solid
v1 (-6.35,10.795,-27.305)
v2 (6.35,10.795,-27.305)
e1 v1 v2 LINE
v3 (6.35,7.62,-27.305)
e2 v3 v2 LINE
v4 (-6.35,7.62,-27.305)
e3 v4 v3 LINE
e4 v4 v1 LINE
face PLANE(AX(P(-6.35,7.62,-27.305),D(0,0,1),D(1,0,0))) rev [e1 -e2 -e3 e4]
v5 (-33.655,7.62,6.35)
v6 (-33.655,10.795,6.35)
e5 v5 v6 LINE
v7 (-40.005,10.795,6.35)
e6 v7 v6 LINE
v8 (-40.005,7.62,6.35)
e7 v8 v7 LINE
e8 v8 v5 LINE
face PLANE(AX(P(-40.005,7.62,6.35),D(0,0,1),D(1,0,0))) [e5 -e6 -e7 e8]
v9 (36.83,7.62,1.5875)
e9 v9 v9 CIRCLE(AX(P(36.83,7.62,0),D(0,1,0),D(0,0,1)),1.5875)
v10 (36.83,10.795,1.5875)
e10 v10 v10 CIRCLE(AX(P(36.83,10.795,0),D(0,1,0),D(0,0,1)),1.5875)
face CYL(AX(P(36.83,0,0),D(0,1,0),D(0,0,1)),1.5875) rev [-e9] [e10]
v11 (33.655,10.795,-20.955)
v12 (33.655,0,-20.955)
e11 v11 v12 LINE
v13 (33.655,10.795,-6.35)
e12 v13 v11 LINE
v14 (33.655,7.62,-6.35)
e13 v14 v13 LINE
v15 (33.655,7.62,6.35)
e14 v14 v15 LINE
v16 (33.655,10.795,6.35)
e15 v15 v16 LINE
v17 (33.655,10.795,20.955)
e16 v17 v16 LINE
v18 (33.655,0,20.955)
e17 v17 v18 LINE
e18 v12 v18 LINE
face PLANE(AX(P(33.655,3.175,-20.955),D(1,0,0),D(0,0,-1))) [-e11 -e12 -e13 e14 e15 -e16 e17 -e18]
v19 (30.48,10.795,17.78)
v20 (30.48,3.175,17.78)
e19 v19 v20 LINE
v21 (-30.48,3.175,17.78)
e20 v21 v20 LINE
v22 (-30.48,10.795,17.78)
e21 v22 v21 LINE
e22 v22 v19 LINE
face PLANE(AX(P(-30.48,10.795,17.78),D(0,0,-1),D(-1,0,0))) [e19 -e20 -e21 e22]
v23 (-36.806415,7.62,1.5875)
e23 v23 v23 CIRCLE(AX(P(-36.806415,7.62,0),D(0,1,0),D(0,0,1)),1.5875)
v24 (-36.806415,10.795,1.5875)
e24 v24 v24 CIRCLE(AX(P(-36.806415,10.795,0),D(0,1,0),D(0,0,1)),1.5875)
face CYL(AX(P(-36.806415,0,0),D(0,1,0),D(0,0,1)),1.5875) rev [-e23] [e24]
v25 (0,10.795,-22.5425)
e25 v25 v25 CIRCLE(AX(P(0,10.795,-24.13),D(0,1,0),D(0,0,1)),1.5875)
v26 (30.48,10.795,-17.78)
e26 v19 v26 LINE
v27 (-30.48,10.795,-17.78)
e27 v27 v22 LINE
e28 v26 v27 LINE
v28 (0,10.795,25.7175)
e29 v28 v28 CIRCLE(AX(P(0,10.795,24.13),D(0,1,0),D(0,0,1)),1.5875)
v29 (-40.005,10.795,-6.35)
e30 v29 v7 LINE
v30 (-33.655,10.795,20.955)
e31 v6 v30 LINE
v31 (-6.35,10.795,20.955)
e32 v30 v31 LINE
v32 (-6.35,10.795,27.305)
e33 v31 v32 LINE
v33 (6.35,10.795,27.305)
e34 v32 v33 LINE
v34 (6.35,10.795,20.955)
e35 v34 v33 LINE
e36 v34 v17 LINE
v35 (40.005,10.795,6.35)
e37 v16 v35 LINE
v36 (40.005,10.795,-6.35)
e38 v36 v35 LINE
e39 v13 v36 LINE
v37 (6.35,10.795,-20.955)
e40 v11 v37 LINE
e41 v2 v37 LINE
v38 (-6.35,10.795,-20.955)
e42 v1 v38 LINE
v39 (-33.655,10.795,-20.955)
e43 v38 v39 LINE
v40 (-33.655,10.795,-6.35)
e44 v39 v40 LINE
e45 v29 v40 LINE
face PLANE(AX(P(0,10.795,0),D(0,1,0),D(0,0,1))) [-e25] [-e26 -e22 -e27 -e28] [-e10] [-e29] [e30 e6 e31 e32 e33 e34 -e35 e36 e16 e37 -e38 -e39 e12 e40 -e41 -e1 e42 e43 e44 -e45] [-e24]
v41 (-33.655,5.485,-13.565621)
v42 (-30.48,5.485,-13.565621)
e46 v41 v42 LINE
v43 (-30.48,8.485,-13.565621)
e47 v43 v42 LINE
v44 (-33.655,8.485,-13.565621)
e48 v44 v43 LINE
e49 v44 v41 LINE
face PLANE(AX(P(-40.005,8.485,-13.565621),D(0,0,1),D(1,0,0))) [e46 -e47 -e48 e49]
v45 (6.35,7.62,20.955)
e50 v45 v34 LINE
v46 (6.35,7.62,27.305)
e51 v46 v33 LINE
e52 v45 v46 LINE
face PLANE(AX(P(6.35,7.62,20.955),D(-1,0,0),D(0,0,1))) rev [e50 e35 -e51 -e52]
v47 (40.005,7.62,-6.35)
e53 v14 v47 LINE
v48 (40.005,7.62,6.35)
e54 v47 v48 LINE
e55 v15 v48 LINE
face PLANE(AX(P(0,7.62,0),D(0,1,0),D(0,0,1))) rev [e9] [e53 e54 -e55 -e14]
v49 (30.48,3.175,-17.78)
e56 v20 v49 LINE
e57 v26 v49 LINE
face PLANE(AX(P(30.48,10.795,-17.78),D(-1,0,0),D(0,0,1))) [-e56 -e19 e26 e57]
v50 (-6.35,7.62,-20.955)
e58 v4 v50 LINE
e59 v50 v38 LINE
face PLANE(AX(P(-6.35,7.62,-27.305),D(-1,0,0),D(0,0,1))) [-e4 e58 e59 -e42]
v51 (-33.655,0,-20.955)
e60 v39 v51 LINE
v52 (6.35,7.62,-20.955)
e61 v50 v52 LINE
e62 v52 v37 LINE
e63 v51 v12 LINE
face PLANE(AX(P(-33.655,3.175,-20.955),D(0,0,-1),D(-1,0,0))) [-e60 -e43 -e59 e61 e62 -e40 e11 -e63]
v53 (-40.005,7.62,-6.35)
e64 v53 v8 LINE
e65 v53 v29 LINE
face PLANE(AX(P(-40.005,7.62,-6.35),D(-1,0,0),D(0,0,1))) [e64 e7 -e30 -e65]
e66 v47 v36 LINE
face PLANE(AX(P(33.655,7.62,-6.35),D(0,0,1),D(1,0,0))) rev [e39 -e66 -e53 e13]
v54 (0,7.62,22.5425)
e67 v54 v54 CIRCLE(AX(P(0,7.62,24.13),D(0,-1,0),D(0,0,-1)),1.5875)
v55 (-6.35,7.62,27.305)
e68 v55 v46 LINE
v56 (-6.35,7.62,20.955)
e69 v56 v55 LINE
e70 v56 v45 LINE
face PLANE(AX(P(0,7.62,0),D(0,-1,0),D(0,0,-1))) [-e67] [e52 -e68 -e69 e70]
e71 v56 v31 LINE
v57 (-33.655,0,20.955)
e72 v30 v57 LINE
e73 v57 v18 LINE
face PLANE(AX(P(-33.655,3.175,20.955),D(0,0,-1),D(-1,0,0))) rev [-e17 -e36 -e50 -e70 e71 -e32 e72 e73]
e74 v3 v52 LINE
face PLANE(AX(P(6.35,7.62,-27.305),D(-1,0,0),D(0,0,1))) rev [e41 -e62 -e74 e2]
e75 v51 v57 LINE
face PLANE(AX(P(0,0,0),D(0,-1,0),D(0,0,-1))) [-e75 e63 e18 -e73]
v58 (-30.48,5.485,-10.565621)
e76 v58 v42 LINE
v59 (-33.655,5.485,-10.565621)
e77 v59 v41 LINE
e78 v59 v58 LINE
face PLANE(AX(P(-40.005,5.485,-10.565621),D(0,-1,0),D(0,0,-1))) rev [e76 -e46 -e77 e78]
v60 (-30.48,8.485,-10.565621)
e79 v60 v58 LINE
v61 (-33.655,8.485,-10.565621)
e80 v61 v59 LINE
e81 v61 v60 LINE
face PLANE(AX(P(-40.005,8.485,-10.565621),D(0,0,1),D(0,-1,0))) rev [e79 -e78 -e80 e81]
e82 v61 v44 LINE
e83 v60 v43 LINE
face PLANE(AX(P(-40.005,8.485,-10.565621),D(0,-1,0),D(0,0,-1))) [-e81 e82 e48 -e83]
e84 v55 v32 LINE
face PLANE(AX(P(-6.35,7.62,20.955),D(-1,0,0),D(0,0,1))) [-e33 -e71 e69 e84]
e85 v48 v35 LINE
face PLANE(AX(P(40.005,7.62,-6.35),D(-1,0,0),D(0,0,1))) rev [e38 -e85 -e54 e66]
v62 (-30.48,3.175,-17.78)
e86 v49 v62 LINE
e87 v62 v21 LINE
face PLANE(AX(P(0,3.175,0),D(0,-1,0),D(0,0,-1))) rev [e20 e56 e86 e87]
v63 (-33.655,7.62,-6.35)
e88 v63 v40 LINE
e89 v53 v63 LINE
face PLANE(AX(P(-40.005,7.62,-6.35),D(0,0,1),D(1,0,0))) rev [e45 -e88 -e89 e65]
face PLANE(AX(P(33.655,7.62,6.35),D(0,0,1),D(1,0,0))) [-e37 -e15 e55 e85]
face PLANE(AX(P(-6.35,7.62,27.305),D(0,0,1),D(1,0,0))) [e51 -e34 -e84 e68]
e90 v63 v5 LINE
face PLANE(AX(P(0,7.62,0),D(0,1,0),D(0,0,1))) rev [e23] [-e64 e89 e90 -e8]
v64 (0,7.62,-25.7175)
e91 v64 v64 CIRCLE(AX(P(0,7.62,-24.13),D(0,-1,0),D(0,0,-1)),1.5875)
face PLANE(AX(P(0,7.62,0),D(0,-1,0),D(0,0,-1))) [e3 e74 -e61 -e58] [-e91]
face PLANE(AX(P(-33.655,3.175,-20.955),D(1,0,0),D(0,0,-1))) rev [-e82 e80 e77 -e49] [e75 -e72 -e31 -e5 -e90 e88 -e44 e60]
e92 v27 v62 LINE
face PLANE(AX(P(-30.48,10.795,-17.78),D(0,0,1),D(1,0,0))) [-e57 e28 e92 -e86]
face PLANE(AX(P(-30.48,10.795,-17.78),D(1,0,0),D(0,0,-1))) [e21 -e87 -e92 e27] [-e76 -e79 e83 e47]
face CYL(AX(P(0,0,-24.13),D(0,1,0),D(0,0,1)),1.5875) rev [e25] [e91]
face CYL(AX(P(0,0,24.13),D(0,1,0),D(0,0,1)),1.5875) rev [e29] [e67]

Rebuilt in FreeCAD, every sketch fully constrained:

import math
import FreeCAD as App
import Part
import Sketcher
Q = App.Units.Quantity

doc = App.newDocument("Part")
body = doc.addObject("PartDesign::Body", "Body")

sketch1 = body.newObject("Sketcher::SketchObject", "Sketch")
sketch1.AttachmentSupport = (doc.getObject("XZ_Plane"), [""])
sketch1.MapMode = "FlatFace"
sketch1.addGeometry(Part.LineSegment(App.Vector(-34, -21, 0), App.Vector(-34, 21, 0)), False)
sketch1.addGeometry(Part.LineSegment(App.Vector(-34, 21, 0), App.Vector(34, 21, 0)), False)
sketch1.addGeometry(Part.LineSegment(App.Vector(34, 21, 0), App.Vector(34, -21, 0)), False)
sketch1.addGeometry(Part.LineSegment(App.Vector(34, -21, 0), App.Vector(-34, -21, 0)), False)
sketch1.addConstraint(Sketcher.Constraint("Coincident", 0, 2, 1, 1))
sketch1.addConstraint(Sketcher.Constraint("Coincident", 1, 2, 2, 1))
sketch1.addConstraint(Sketcher.Constraint("Coincident", 2, 2, 3, 1))
sketch1.addConstraint(Sketcher.Constraint("Coincident", 3, 2, 0, 1))
sketch1.addConstraint(Sketcher.Constraint("Vertical", 0))
sketch1.addConstraint(Sketcher.Constraint("Horizontal", 1))
sketch1.addConstraint(Sketcher.Constraint("Vertical", 2))
sketch1.addConstraint(Sketcher.Constraint("Horizontal", 3))
sketch1.addConstraint(Sketcher.Constraint("Symmetric", 0, 2, 2, 2, -1, 1))
sketch1.addConstraint(Sketcher.Constraint("DistanceX", 1, 1, 1, 2, Q("2.65 in")))
sketch1.addConstraint(Sketcher.Constraint("DistanceY", 0, 1, 0, 2, Q("1.65 in")))
pad1 = body.newObject("PartDesign::Pad", "Pad")
pad1.Profile = sketch1
pad1.Length = Q("0.125 in")
pad1.Reversed = True

sketch2 = body.newObject("Sketcher::SketchObject", "Sketch001")
sketch2.AttachmentSupport = (doc.getObject("XZ_Plane"), [""])
sketch2.MapMode = "FlatFace"
sketch2.AttachmentOffset = App.Placement(App.Vector(0, 0, -0.125 * 25.4), App.Rotation())
sketch2.addGeometry(Part.LineSegment(App.Vector(-34, -21, 0), App.Vector(-34, 21, 0)), False)
sketch2.addGeometry(Part.LineSegment(App.Vector(-34, 21, 0), App.Vector(34, 21, 0)), False)
sketch2.addGeometry(Part.LineSegment(App.Vector(34, 21, 0), App.Vector(34, -21, 0)), False)
sketch2.addGeometry(Part.LineSegment(App.Vector(34, -21, 0), App.Vector(-34, -21, 0)), False)
sketch2.addGeometry(Part.LineSegment(App.Vector(30, 18, 0), App.Vector(-30, 18, 0)), False)
sketch2.addGeometry(Part.LineSegment(App.Vector(-30, 18, 0), App.Vector(-30, -18, 0)), False)
sketch2.addGeometry(Part.LineSegment(App.Vector(-30, -18, 0), App.Vector(30, -18, 0)), False)
sketch2.addGeometry(Part.LineSegment(App.Vector(30, -18, 0), App.Vector(30, 18, 0)), False)
sketch2.addConstraint(Sketcher.Constraint("Coincident", 0, 2, 1, 1))
sketch2.addConstraint(Sketcher.Constraint("Coincident", 1, 2, 2, 1))
sketch2.addConstraint(Sketcher.Constraint("Coincident", 2, 2, 3, 1))
sketch2.addConstraint(Sketcher.Constraint("Coincident", 3, 2, 0, 1))
sketch2.addConstraint(Sketcher.Constraint("Coincident", 4, 2, 5, 1))
sketch2.addConstraint(Sketcher.Constraint("Coincident", 5, 2, 6, 1))
sketch2.addConstraint(Sketcher.Constraint("Coincident", 6, 2, 7, 1))
sketch2.addConstraint(Sketcher.Constraint("Coincident", 7, 2, 4, 1))
sketch2.addConstraint(Sketcher.Constraint("Vertical", 0))
sketch2.addConstraint(Sketcher.Constraint("Horizontal", 1))
sketch2.addConstraint(Sketcher.Constraint("Vertical", 2))
sketch2.addConstraint(Sketcher.Constraint("Horizontal", 3))
sketch2.addConstraint(Sketcher.Constraint("Horizontal", 4))
sketch2.addConstraint(Sketcher.Constraint("Vertical", 5))
sketch2.addConstraint(Sketcher.Constraint("Horizontal", 6))
sketch2.addConstraint(Sketcher.Constraint("Vertical", 7))
sketch2.addConstraint(Sketcher.Constraint("Symmetric", 0, 2, 2, 2, -1, 1))
sketch2.addConstraint(Sketcher.Constraint("Symmetric", 4, 2, 6, 2, -1, 1))
sketch2.addConstraint(Sketcher.Constraint("DistanceX", 4, 2, 4, 1, Q("2.4 in")))
sketch2.addConstraint(Sketcher.Constraint("DistanceY", 5, 2, 5, 1, Q("1.4 in")))
sketch2.addConstraint(Sketcher.Constraint("DistanceX", 1, 1, 1, 2, Q("2.65 in")))
sketch2.addConstraint(Sketcher.Constraint("DistanceY", 0, 1, 0, 2, Q("1.65 in")))
pad2 = body.newObject("PartDesign::Pad", "Pad001")
pad2.Profile = sketch2
pad2.Length = Q("0.3 in")
pad2.Reversed = True

sketch3 = body.newObject("Sketcher::SketchObject", "Sketch002")
sketch3.AttachmentSupport = (doc.getObject("XZ_Plane"), [""])
sketch3.MapMode = "FlatFace"
sketch3.AttachmentOffset = App.Placement(App.Vector(0, 0, -0.425 * 25.4), App.Rotation())
sketch3.addGeometry(Part.LineSegment(App.Vector(-6, 21, 0), App.Vector(-6, 27, 0)), False)
sketch3.addGeometry(Part.LineSegment(App.Vector(-6, 27, 0), App.Vector(6, 27, 0)), False)
sketch3.addGeometry(Part.LineSegment(App.Vector(6, 27, 0), App.Vector(6, 21, 0)), False)
sketch3.addGeometry(Part.LineSegment(App.Vector(6, 21, 0), App.Vector(-6, 21, 0)), False)
sketch3.addGeometry(Part.LineSegment(App.Vector(-6, -27, 0), App.Vector(-6, -21, 0)), False)
sketch3.addGeometry(Part.LineSegment(App.Vector(-6, -21, 0), App.Vector(6, -21, 0)), False)
sketch3.addGeometry(Part.LineSegment(App.Vector(6, -21, 0), App.Vector(6, -27, 0)), False)
sketch3.addGeometry(Part.LineSegment(App.Vector(6, -27, 0), App.Vector(-6, -27, 0)), False)
sketch3.addGeometry(Part.LineSegment(App.Vector(34, -6, 0), App.Vector(34, 6, 0)), False)
sketch3.addGeometry(Part.LineSegment(App.Vector(34, 6, 0), App.Vector(40, 6, 0)), False)
sketch3.addGeometry(Part.LineSegment(App.Vector(40, 6, 0), App.Vector(40, -6, 0)), False)
sketch3.addGeometry(Part.LineSegment(App.Vector(40, -6, 0), App.Vector(34, -6, 0)), False)
sketch3.addGeometry(Part.LineSegment(App.Vector(-40, -6, 0), App.Vector(-40, 6, 0)), False)
sketch3.addGeometry(Part.LineSegment(App.Vector(-40, 6, 0), App.Vector(-34, 6, 0)), False)
sketch3.addGeometry(Part.LineSegment(App.Vector(-34, 6, 0), App.Vector(-34, -6, 0)), False)
sketch3.addGeometry(Part.LineSegment(App.Vector(-34, -6, 0), App.Vector(-40, -6, 0)), False)
sketch3.addConstraint(Sketcher.Constraint("Coincident", 0, 2, 1, 1))
sketch3.addConstraint(Sketcher.Constraint("Coincident", 1, 2, 2, 1))
sketch3.addConstraint(Sketcher.Constraint("Coincident", 2, 2, 3, 1))
sketch3.addConstraint(Sketcher.Constraint("Coincident", 3, 2, 0, 1))
sketch3.addConstraint(Sketcher.Constraint("Coincident", 4, 2, 5, 1))
sketch3.addConstraint(Sketcher.Constraint("Coincident", 5, 2, 6, 1))
sketch3.addConstraint(Sketcher.Constraint("Coincident", 6, 2, 7, 1))
sketch3.addConstraint(Sketcher.Constraint("Coincident", 7, 2, 4, 1))
sketch3.addConstraint(Sketcher.Constraint("Coincident", 8, 2, 9, 1))
sketch3.addConstraint(Sketcher.Constraint("Coincident", 9, 2, 10, 1))
sketch3.addConstraint(Sketcher.Constraint("Coincident", 10, 2, 11, 1))
sketch3.addConstraint(Sketcher.Constraint("Coincident", 11, 2, 8, 1))
sketch3.addConstraint(Sketcher.Constraint("Coincident", 12, 2, 13, 1))
sketch3.addConstraint(Sketcher.Constraint("Coincident", 13, 2, 14, 1))
sketch3.addConstraint(Sketcher.Constraint("Coincident", 14, 2, 15, 1))
sketch3.addConstraint(Sketcher.Constraint("Coincident", 15, 2, 12, 1))
sketch3.addConstraint(Sketcher.Constraint("Vertical", 0))
sketch3.addConstraint(Sketcher.Constraint("Horizontal", 1))
sketch3.addConstraint(Sketcher.Constraint("Vertical", 2))
sketch3.addConstraint(Sketcher.Constraint("Horizontal", 3))
sketch3.addConstraint(Sketcher.Constraint("Vertical", 4))
sketch3.addConstraint(Sketcher.Constraint("Horizontal", 5))
sketch3.addConstraint(Sketcher.Constraint("Vertical", 6))
sketch3.addConstraint(Sketcher.Constraint("Horizontal", 7))
sketch3.addConstraint(Sketcher.Constraint("Vertical", 8))
sketch3.addConstraint(Sketcher.Constraint("Horizontal", 9))
sketch3.addConstraint(Sketcher.Constraint("Vertical", 10))
sketch3.addConstraint(Sketcher.Constraint("Horizontal", 11))
sketch3.addConstraint(Sketcher.Constraint("Vertical", 12))
sketch3.addConstraint(Sketcher.Constraint("Horizontal", 13))
sketch3.addConstraint(Sketcher.Constraint("Vertical", 14))
sketch3.addConstraint(Sketcher.Constraint("Horizontal", 15))
sketch3.addConstraint(Sketcher.Constraint("Symmetric", 2, 2, 4, 2, -1, 1))
sketch3.addConstraint(Sketcher.Constraint("Symmetric", 0, 2, 6, 2, -1, 1))
sketch3.addConstraint(Sketcher.Constraint("Symmetric", 10, 2, 12, 2, -1, 1))
sketch3.addConstraint(Sketcher.Constraint("Symmetric", 8, 2, 14, 2, -1, 1))
sketch3.addConstraint(Sketcher.Constraint("Horizontal", 9, 2, 12, 2))
sketch3.addConstraint(Sketcher.Constraint("Vertical", 3, 2, 4, 2))
sketch3.addConstraint(Sketcher.Constraint("Equal", 15, 0))
sketch3.addConstraint(Sketcher.Constraint("Equal", 7, 8))
sketch3.addConstraint(Sketcher.Constraint("DistanceX", 1, 1, 1, 2, Q("0.5 in")))
sketch3.addConstraint(Sketcher.Constraint("DistanceX", 9, 1, 9, 2, Q("0.25 in")))
sketch3.addConstraint(Sketcher.Constraint("DistanceY", 4, 2, 0, 2, Q("1.9 in")))
sketch3.addConstraint(Sketcher.Constraint("DistanceX", -1, 1, 8, 2, Q("1.325 in")))
pad3 = body.newObject("PartDesign::Pad", "Pad002")
pad3.Profile = sketch3
pad3.Length = Q("0.125 in")

sketch4 = body.newObject("Sketcher::SketchObject", "Sketch003")
sketch4.AttachmentSupport = (doc.getObject("XZ_Plane"), [""])
sketch4.MapMode = "FlatFace"
sketch4.AttachmentOffset = App.Placement(App.Vector(0, 0, -0.425 * 25.4), App.Rotation())
sketch4.addGeometry(Part.ArcOfCircle(Part.Circle(App.Vector(0, -24.1, 0), App.Vector(0, 0, 1), 1.6), math.radians(90), math.radians(270)), False)
sketch4.addGeometry(Part.ArcOfCircle(Part.Circle(App.Vector(0, -24.1, 0), App.Vector(0, 0, 1), 1.6), math.radians(0), math.radians(90)), False)
sketch4.addGeometry(Part.ArcOfCircle(Part.Circle(App.Vector(0, -24.1, 0), App.Vector(0, 0, 1), 1.6), math.radians(-90), math.radians(0)), False)
sketch4.addGeometry(Part.Circle(App.Vector(-36.8, 0, 0), App.Vector(0, 0, 1), 1.6), False)
sketch4.addGeometry(Part.Circle(App.Vector(36.8, 0, 0), App.Vector(0, 0, 1), 1.6), False)
sketch4.addGeometry(Part.Circle(App.Vector(0, 24.1, 0), App.Vector(0, 0, 1), 1.6), False)
sketch4.addConstraint(Sketcher.Constraint("Tangent", 0, 1, 1, 2))
sketch4.addConstraint(Sketcher.Constraint("Tangent", 1, 1, 2, 2))
sketch4.addConstraint(Sketcher.Constraint("Tangent", 2, 1, 0, 2))
sketch4.addConstraint(Sketcher.Constraint("Equal", 2, 3))
sketch4.addConstraint(Sketcher.Constraint("Equal", 3, 4))
sketch4.addConstraint(Sketcher.Constraint("Equal", 4, 5))
sketch4.addConstraint(Sketcher.Constraint("Symmetric", 0, 3, 5, 3, -1, 1))
sketch4.addConstraint(Sketcher.Constraint("PointOnObject", 0, 3, -2))
sketch4.addConstraint(Sketcher.Constraint("PointOnObject", 3, 3, -1))
sketch4.addConstraint(Sketcher.Constraint("PointOnObject", 4, 3, -1))
sketch4.addConstraint(Sketcher.Constraint("PointOnObject", 0, 1, -2))
sketch4.addConstraint(Sketcher.Constraint("PointOnObject", 2, 1, -2))
sketch4.addConstraint(Sketcher.Constraint("Horizontal", 2, 3, 1, 1))
sketch4.addConstraint(Sketcher.Constraint("Diameter", 3, Q("0.125 in")))
sketch4.addConstraint(Sketcher.Constraint("DistanceY", 0, 3, 5, 3, Q("1.9 in")))
sketch4.addConstraint(Sketcher.Constraint("DistanceX", -1, 1, 4, 3, Q("1.45 in")))
sketch4.addConstraint(Sketcher.Constraint("DistanceX", 3, 3, -1, 1, Q("36.806415 mm")))
pocket1 = body.newObject("PartDesign::Pocket", "Pocket")
pocket1.Profile = sketch4
pocket1.Type = "ThroughAll"
pocket1.Reversed = True

sketch5 = body.newObject("Sketcher::SketchObject", "Sketch004")
sketch5.AttachmentSupport = (doc.getObject("YZ_Plane"), [""])
sketch5.MapMode = "FlatFace"
sketch5.AttachmentOffset = App.Placement(App.Vector(0, 0, -1.2 * 25.4), App.Rotation())
sketch5.addGeometry(Part.LineSegment(App.Vector(8.5, -10.6, 0), App.Vector(5.5, -10.6, 0)), False)
sketch5.addGeometry(Part.LineSegment(App.Vector(5.5, -10.6, 0), App.Vector(5.5, -13.6, 0)), False)
sketch5.addGeometry(Part.LineSegment(App.Vector(5.5, -13.6, 0), App.Vector(8.5, -13.6, 0)), False)
sketch5.addGeometry(Part.LineSegment(App.Vector(8.5, -13.6, 0), App.Vector(8.5, -10.6, 0)), False)
sketch5.addConstraint(Sketcher.Constraint("Coincident", 0, 2, 1, 1))
sketch5.addConstraint(Sketcher.Constraint("Coincident", 1, 2, 2, 1))
sketch5.addConstraint(Sketcher.Constraint("Coincident", 2, 2, 3, 1))
sketch5.addConstraint(Sketcher.Constraint("Coincident", 3, 2, 0, 1))
sketch5.addConstraint(Sketcher.Constraint("Horizontal", 0))
sketch5.addConstraint(Sketcher.Constraint("Vertical", 1))
sketch5.addConstraint(Sketcher.Constraint("Horizontal", 2))
sketch5.addConstraint(Sketcher.Constraint("Vertical", 3))
sketch5.addConstraint(Sketcher.Constraint("Equal", 2, 1))
sketch5.addConstraint(Sketcher.Constraint("DistanceX", 0, 2, 0, 1, Q("3 mm")))
sketch5.addConstraint(Sketcher.Constraint("DistanceX", -1, 1, 0, 2, Q("5.485 mm")))
sketch5.addConstraint(Sketcher.Constraint("DistanceY", 0, 2, -1, 1, Q("10.565621 mm")))
pocket2 = body.newObject("PartDesign::Pocket", "Pocket001")
pocket2.Profile = sketch5
pocket2.Type = "ThroughAll"

doc.recompute()
